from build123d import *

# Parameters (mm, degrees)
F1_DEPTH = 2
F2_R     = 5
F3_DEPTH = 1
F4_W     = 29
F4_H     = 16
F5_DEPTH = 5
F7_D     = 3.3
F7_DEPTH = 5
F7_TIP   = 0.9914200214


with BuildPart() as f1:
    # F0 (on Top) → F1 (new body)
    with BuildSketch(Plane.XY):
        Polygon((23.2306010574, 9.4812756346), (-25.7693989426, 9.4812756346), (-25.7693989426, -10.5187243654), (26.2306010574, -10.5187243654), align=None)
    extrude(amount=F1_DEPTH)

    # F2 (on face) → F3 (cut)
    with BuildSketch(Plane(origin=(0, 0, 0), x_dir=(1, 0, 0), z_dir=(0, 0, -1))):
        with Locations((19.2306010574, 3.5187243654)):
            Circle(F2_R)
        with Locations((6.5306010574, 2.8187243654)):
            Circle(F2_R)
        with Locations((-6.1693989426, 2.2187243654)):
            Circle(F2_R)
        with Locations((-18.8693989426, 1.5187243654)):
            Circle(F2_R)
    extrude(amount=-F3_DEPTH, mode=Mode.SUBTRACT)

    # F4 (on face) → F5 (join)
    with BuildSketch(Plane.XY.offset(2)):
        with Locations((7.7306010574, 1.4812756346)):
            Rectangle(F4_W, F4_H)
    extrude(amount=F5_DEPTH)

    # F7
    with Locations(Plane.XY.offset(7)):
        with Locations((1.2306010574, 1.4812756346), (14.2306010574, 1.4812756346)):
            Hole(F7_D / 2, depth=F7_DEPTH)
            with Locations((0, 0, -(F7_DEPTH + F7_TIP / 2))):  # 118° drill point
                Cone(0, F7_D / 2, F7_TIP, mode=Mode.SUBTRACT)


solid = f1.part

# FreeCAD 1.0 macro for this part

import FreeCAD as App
import Part
import Sketcher


def add_polygon(sketch, points):
    """Adds a closed chain of lines whose ends are joined by coincident constraints."""
    first, n = sketch.GeometryCount, len(points)
    for a, b in zip(points, points[1:] + points[:1]):
        sketch.addGeometry(Part.LineSegment(App.Vector(*a, 0), App.Vector(*b, 0)), False)
    for i in range(n):
        sketch.addConstraint(Sketcher.Constraint("Coincident", first + i, 2, first + (i + 1) % n, 1))

doc = App.newDocument("Part")
body = doc.addObject("PartDesign::Body", "Body")

sketch1 = body.newObject("Sketcher::SketchObject", "Sketch")
sketch1.AttachmentSupport = (doc.getObject("XY_Plane"), [""])
sketch1.MapMode = "FlatFace"
add_polygon(sketch1, [(23, 9), (-26, 9), (-26, -11), (26, -11)])
sketch1.addConstraint([
    Sketcher.Constraint("Horizontal", 0),
    Sketcher.Constraint("Vertical", 1),
    Sketcher.Constraint("Horizontal", 2),
    Sketcher.Constraint("DistanceX", 0, 2, 0, 1, 49.0),
    Sketcher.Constraint("DistanceX", 2, 1, 2, 2, 52.0),
    Sketcher.Constraint("DistanceY", 1, 2, 1, 1, 20.0),
    Sketcher.Constraint("DistanceX", 0, 2, -1, 1, 25.769399),
    Sketcher.Constraint("DistanceY", -1, 1, 0, 2, 9.481276),
])
pad1 = body.newObject("PartDesign::Pad", "Pad")
pad1.Profile = sketch1
pad1.Length = 2

sketch2 = body.newObject("Sketcher::SketchObject", "Sketch001")
sketch2.AttachmentSupport = (doc.getObject("XY_Plane"), [""])
sketch2.MapMode = "FlatFace"
sketch2.addGeometry([
    Part.Circle(App.Vector(19, -4, 0), App.Vector(0, 0, 1), 5),
    Part.Circle(App.Vector(7, -3, 0), App.Vector(0, 0, 1), 5),
    Part.Circle(App.Vector(-6, -2, 0), App.Vector(0, 0, 1), 5),
    Part.Circle(App.Vector(-19, -2, 0), App.Vector(0, 0, 1), 5),
], False)
sketch2.addConstraint([
    Sketcher.Constraint("Equal", 0, 1),
    Sketcher.Constraint("Equal", 1, 2),
    Sketcher.Constraint("Equal", 2, 3),
    Sketcher.Constraint("Diameter", 0, 10.0),
    Sketcher.Constraint("DistanceY", 0, 3, 3, 3, 2.0),
    Sketcher.Constraint("DistanceX", 1, 3, 0, 3, 12.7),
    Sketcher.Constraint("DistanceY", 0, 3, 1, 3, 0.7),
    Sketcher.Constraint("DistanceX", 2, 3, 1, 3, 12.7),
    Sketcher.Constraint("DistanceY", 1, 3, 2, 3, 0.6),
    Sketcher.Constraint("DistanceX", 3, 3, 2, 3, 12.7),
    Sketcher.Constraint("DistanceX", -1, 1, 0, 3, 19.230601),
    Sketcher.Constraint("DistanceY", 0, 3, -1, 1, 3.518724),
])
pocket1 = body.newObject("PartDesign::Pocket", "Pocket")
pocket1.Profile = sketch2
pocket1.Length = 1
pocket1.Reversed = True

sketch3 = body.newObject("Sketcher::SketchObject", "Sketch002")
sketch3.AttachmentSupport = (doc.getObject("XY_Plane"), [""])
sketch3.MapMode = "FlatFace"
sketch3.AttachmentOffset = App.Placement(App.Vector(0, 0, 2), App.Rotation())
add_polygon(sketch3, [(-7, 9), (-7, -7), (22, -7), (22, 9)])
sketch3.addConstraint([
    Sketcher.Constraint("Vertical", 0),
    Sketcher.Constraint("Horizontal", 1),
    Sketcher.Constraint("Vertical", 2),
    Sketcher.Constraint("Horizontal", 3),
    Sketcher.Constraint("DistanceX", 1, 1, 1, 2, 29.0),
    Sketcher.Constraint("DistanceY", 0, 2, 0, 1, 16.0),
    Sketcher.Constraint("DistanceX", 0, 2, -1, 1, 6.769399),
    Sketcher.Constraint("DistanceY", 0, 2, -1, 1, 6.518724),
])
pad2 = body.newObject("PartDesign::Pad", "Pad001")
pad2.Profile = sketch3
pad2.Length = 5

sketch4 = body.newObject("Sketcher::SketchObject", "Sketch003")
sketch4.AttachmentSupport = (doc.getObject("XY_Plane"), [""])
sketch4.MapMode = "FlatFace"
sketch4.AttachmentOffset = App.Placement(App.Vector(0, 0, 7), App.Rotation())
sketch4.addGeometry([
    Part.Circle(App.Vector(1.2, 1.5, 0), App.Vector(0, 0, 1), 1.6),
    Part.Circle(App.Vector(14.2, 1.5, 0), App.Vector(0, 0, 1), 1.6),
], False)
sketch4.addConstraint([
    Sketcher.Constraint("Equal", 0, 1),
    Sketcher.Constraint("Horizontal", 0, 3, 1, 3),
    Sketcher.Constraint("Diameter", 0, 3.3),
    Sketcher.Constraint("DistanceX", 0, 3, 1, 3, 13.0),
    Sketcher.Constraint("DistanceX", -1, 1, 0, 3, 1.230601),
    Sketcher.Constraint("DistanceY", -1, 1, 0, 3, 1.481276),
])
doc.recompute()
hole = body.newObject("PartDesign::Hole", "Hole")
hole.Profile = sketch4
hole.ThreadType = "None"
hole.Diameter = 3.3
hole.DepthType = "Dimension"
hole.Depth = 5
hole.DrillPoint = "Angled"
hole.DrillPointAngle = 118

doc.recompute()
